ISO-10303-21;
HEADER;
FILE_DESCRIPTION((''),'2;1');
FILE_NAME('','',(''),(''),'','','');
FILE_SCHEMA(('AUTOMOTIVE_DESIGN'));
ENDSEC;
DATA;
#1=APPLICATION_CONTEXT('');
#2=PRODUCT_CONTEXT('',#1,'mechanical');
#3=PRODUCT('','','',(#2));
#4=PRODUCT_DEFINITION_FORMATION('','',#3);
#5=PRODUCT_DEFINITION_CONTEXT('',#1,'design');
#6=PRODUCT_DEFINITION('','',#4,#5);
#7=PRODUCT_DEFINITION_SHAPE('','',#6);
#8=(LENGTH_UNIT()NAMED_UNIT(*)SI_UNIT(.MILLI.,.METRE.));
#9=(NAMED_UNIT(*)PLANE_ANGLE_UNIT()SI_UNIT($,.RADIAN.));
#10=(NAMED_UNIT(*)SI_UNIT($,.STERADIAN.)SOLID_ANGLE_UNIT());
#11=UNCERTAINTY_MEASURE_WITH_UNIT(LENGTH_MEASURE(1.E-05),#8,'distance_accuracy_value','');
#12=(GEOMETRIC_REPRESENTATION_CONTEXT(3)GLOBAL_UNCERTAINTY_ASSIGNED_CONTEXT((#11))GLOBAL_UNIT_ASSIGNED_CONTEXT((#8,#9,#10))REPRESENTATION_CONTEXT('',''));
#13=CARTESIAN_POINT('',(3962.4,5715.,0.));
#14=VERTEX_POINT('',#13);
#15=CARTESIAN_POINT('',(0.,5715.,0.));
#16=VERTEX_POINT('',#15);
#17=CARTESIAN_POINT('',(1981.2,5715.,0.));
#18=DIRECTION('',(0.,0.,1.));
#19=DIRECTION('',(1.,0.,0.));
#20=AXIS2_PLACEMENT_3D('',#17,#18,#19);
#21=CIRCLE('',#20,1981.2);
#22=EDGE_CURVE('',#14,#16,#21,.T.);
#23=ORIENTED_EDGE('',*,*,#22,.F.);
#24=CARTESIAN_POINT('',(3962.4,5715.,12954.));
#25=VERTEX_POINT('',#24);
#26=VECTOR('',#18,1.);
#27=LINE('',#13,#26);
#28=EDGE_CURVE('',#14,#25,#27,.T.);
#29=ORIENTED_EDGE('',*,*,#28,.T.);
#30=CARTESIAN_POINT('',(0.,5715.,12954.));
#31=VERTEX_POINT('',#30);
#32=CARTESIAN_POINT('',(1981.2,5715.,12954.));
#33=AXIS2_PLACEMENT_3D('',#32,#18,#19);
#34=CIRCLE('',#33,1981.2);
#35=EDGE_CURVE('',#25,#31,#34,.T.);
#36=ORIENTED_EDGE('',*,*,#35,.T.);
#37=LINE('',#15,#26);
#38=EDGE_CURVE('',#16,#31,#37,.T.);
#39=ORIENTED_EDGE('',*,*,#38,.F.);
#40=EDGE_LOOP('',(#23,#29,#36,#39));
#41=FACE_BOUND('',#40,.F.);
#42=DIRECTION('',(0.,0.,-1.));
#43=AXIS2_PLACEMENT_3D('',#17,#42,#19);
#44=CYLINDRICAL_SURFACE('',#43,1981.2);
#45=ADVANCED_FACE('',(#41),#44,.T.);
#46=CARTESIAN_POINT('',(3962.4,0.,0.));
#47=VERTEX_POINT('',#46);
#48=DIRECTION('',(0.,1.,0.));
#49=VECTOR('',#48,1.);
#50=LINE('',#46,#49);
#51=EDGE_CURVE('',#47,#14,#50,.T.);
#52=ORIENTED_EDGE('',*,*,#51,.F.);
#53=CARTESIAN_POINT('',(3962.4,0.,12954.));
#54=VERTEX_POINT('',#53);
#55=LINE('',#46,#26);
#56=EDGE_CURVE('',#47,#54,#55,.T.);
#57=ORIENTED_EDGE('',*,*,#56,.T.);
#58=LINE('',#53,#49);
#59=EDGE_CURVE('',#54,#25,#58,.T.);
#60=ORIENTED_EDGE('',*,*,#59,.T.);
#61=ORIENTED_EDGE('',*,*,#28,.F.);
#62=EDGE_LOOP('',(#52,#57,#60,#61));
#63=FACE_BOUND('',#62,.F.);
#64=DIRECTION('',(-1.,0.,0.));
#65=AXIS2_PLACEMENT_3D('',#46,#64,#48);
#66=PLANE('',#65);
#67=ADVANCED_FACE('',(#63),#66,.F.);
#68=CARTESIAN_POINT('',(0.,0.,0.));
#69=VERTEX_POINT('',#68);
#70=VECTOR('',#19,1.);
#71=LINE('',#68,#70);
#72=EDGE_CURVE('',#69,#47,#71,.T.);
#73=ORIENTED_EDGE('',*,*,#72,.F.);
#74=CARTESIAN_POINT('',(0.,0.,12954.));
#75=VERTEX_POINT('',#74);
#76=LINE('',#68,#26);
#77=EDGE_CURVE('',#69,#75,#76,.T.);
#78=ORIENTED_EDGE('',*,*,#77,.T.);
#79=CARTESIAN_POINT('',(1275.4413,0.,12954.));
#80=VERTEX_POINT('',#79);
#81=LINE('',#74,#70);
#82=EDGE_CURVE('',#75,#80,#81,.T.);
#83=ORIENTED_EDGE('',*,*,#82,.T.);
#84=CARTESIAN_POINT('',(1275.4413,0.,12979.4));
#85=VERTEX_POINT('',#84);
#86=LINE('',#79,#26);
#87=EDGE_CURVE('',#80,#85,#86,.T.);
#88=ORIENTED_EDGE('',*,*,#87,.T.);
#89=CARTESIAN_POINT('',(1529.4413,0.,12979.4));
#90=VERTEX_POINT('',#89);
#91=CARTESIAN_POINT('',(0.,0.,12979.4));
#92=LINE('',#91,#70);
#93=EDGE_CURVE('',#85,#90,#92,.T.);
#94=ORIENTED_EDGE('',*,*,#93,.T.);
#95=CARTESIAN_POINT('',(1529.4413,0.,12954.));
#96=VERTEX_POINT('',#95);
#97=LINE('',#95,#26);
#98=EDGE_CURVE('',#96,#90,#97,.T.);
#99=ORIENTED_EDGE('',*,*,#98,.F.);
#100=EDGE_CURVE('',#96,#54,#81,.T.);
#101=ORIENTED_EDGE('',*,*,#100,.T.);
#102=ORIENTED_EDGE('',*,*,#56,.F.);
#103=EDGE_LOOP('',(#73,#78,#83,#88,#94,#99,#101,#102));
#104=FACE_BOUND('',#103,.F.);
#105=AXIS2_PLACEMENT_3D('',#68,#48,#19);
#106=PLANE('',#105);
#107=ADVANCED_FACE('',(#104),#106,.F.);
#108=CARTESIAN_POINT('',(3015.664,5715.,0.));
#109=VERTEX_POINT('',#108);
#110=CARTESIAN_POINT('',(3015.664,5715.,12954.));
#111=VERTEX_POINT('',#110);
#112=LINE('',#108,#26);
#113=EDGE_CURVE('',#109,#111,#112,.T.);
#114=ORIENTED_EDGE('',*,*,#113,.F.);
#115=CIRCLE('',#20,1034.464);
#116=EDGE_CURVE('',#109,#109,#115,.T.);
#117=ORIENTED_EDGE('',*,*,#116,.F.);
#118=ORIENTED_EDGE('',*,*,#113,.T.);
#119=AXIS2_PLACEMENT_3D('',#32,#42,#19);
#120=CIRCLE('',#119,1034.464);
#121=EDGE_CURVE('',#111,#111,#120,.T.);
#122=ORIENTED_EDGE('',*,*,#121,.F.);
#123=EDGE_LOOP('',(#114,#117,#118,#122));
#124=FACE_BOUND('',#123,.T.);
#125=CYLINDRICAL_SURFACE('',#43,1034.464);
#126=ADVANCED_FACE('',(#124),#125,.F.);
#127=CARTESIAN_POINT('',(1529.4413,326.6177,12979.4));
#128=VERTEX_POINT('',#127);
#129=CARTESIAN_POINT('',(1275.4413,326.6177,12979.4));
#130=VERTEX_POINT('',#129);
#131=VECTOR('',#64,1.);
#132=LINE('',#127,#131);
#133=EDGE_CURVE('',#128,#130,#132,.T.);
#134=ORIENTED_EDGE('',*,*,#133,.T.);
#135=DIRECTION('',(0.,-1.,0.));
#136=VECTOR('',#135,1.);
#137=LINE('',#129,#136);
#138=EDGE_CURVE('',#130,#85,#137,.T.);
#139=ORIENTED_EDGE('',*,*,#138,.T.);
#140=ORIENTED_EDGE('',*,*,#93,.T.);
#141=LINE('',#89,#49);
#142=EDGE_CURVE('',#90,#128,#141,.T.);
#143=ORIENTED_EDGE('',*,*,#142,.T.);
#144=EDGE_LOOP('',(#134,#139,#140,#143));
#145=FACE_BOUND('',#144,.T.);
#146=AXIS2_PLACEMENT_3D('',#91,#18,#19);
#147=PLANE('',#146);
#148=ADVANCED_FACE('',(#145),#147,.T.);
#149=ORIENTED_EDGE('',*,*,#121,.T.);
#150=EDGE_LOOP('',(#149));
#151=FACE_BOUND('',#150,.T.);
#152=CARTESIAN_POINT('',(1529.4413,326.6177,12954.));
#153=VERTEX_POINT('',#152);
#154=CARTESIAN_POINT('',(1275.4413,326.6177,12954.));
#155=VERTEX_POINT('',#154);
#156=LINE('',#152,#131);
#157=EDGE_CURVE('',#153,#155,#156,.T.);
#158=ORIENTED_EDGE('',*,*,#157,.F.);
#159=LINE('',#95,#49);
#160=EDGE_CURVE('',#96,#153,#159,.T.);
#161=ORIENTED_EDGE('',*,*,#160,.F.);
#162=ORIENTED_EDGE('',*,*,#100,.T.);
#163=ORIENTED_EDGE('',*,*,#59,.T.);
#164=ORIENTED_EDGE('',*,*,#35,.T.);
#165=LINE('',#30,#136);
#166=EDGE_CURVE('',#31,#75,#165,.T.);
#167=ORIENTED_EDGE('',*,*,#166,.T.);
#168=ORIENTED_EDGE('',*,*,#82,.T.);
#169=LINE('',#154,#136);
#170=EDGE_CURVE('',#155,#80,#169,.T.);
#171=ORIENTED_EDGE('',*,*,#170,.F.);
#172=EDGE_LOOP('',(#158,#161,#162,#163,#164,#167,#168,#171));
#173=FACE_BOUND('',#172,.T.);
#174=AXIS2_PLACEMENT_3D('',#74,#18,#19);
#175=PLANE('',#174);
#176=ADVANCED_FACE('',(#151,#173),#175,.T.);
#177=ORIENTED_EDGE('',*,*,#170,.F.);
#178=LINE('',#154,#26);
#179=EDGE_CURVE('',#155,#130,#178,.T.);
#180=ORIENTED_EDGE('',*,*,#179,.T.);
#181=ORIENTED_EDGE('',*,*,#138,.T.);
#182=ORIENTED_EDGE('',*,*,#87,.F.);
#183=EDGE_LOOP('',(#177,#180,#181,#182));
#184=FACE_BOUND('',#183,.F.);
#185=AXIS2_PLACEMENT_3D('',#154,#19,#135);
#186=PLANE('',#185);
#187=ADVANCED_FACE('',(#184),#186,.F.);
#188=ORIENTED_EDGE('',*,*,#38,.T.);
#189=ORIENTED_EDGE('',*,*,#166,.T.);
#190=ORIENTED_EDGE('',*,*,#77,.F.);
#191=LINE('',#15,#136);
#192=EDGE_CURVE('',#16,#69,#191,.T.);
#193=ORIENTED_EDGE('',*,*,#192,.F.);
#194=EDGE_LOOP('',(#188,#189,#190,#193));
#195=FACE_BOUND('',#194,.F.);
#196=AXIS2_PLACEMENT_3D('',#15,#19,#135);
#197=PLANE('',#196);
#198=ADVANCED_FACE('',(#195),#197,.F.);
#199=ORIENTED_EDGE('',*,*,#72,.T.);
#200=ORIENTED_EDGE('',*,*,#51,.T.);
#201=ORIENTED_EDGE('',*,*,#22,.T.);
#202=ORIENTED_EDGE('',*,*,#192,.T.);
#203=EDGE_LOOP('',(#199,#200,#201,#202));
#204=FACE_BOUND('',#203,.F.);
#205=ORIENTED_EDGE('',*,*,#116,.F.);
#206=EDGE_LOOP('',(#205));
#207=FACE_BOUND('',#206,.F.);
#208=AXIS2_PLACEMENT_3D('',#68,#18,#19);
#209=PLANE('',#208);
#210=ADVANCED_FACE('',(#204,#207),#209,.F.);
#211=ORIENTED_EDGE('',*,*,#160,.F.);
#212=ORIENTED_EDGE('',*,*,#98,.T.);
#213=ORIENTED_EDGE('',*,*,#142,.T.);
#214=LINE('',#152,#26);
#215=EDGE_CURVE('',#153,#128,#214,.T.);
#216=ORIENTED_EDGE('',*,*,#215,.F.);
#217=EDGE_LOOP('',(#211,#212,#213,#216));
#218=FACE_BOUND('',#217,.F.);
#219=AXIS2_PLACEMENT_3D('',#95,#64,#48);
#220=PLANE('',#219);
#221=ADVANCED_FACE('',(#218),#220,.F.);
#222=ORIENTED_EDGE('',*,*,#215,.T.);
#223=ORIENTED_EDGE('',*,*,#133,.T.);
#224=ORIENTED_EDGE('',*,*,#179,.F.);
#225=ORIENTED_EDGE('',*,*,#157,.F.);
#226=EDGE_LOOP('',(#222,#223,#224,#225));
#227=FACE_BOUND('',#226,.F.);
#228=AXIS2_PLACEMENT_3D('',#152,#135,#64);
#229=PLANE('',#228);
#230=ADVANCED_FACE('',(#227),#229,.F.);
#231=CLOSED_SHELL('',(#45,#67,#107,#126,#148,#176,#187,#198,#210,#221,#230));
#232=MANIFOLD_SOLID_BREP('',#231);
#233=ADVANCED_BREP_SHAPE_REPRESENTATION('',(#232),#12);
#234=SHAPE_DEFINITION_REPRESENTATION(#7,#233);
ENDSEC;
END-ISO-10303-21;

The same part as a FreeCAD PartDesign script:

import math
import FreeCAD as App
import Part
import Sketcher
Q = App.Units.Quantity

doc = App.newDocument("Part")
body = doc.addObject("PartDesign::Body", "Body")

sketch1 = doc.addObject("Sketcher::SketchObject", "Sketch")
body.addObject(sketch1)
sketch1.AttachmentSupport = (doc.XY_Plane, [""])
sketch1.MapMode = "FlatFace"
sketch1.addGeometry([
    Part.LineSegment(App.Vector(0, 5715, 0), App.Vector(0, 0, 0)),
    Part.LineSegment(App.Vector(0, 0, 0), App.Vector(3962, 0, 0)),
    Part.LineSegment(App.Vector(3962, 0, 0), App.Vector(3962, 5715, 0)),
    Part.ArcOfCircle(Part.Circle(App.Vector(1981, 5715, 0), App.Vector(0, 0, 1), 1981), math.radians(0), math.radians(180)),
    Part.Circle(App.Vector(1981, 5715, 0), App.Vector(0, 0, 1), 1034),
], False)
sketch1.addConstraint([
    Sketcher.Constraint("Coincident", 0, 2, 1, 1),
    Sketcher.Constraint("Coincident", 1, 2, 2, 1),
    Sketcher.Constraint("Coincident", 2, 2, 3, 1),
    Sketcher.Constraint("Coincident", 3, 2, 0, 1),
    Sketcher.Constraint("Vertical", 0),
    Sketcher.Constraint("Horizontal", 1),
    Sketcher.Constraint("Vertical", 2),
    Sketcher.Constraint("Coincident", 0, 2, -1, 1),
    Sketcher.Constraint("Coincident", 4, 3, 3, 3),
    Sketcher.Constraint("Horizontal", 4, 3, 2, 2),
    Sketcher.Constraint("Equal", 0, 2),
    Sketcher.Constraint("Radius", 3, Q("78 in")),
    Sketcher.Constraint("DistanceY", 0, 2, 0, 1, Q("225 in")),
    Sketcher.Constraint("Diameter", 4, Q("2068.928 mm")),
])
pad1 = doc.addObject("PartDesign::Pad", "Pad")
body.addObject(pad1)
pad1.Profile = sketch1
pad1.Length = Q("510 in")

sketch2 = doc.addObject("Sketcher::SketchObject", "Sketch001")
body.addObject(sketch2)
sketch2.AttachmentSupport = (doc.XY_Plane, [""])
sketch2.MapMode = "FlatFace"
sketch2.AttachmentOffset = App.Placement(App.Vector(0, 0, 510 * 25.4), App.Rotation())
sketch2.addGeometry([
    Part.LineSegment(App.Vector(1275, 327, 0), App.Vector(1275, 0, 0)),
    Part.LineSegment(App.Vector(1275, 0, 0), App.Vector(1529, 0, 0)),
    Part.LineSegment(App.Vector(1529, 0, 0), App.Vector(1529, 327, 0)),
    Part.LineSegment(App.Vector(1529, 327, 0), App.Vector(1275, 327, 0)),
], False)
sketch2.addConstraint([
    Sketcher.Constraint("Coincident", 0, 2, 1, 1),
    Sketcher.Constraint("Coincident", 1, 2, 2, 1),
    Sketcher.Constraint("Coincident", 2, 2, 3, 1),
    Sketcher.Constraint("Coincident", 3, 2, 0, 1),
    Sketcher.Constraint("Vertical", 0),
    Sketcher.Constraint("Horizontal", 1),
    Sketcher.Constraint("Vertical", 2),
    Sketcher.Constraint("Horizontal", 3),
    Sketcher.Constraint("PointOnObject", 0, 2, -1),
    Sketcher.Constraint("DistanceX", 1, 1, 1, 2, Q("10 in")),
    Sketcher.Constraint("DistanceY", 0, 2, 0, 1, Q("326.6177 mm")),
    Sketcher.Constraint("DistanceX", -1, 1, 0, 2, Q("1275.4413 mm")),
])
pad2 = doc.addObject("PartDesign::Pad", "Pad001")
body.addObject(pad2)
pad2.Profile = sketch2
pad2.Length = Q("1 in")

doc.recompute()
